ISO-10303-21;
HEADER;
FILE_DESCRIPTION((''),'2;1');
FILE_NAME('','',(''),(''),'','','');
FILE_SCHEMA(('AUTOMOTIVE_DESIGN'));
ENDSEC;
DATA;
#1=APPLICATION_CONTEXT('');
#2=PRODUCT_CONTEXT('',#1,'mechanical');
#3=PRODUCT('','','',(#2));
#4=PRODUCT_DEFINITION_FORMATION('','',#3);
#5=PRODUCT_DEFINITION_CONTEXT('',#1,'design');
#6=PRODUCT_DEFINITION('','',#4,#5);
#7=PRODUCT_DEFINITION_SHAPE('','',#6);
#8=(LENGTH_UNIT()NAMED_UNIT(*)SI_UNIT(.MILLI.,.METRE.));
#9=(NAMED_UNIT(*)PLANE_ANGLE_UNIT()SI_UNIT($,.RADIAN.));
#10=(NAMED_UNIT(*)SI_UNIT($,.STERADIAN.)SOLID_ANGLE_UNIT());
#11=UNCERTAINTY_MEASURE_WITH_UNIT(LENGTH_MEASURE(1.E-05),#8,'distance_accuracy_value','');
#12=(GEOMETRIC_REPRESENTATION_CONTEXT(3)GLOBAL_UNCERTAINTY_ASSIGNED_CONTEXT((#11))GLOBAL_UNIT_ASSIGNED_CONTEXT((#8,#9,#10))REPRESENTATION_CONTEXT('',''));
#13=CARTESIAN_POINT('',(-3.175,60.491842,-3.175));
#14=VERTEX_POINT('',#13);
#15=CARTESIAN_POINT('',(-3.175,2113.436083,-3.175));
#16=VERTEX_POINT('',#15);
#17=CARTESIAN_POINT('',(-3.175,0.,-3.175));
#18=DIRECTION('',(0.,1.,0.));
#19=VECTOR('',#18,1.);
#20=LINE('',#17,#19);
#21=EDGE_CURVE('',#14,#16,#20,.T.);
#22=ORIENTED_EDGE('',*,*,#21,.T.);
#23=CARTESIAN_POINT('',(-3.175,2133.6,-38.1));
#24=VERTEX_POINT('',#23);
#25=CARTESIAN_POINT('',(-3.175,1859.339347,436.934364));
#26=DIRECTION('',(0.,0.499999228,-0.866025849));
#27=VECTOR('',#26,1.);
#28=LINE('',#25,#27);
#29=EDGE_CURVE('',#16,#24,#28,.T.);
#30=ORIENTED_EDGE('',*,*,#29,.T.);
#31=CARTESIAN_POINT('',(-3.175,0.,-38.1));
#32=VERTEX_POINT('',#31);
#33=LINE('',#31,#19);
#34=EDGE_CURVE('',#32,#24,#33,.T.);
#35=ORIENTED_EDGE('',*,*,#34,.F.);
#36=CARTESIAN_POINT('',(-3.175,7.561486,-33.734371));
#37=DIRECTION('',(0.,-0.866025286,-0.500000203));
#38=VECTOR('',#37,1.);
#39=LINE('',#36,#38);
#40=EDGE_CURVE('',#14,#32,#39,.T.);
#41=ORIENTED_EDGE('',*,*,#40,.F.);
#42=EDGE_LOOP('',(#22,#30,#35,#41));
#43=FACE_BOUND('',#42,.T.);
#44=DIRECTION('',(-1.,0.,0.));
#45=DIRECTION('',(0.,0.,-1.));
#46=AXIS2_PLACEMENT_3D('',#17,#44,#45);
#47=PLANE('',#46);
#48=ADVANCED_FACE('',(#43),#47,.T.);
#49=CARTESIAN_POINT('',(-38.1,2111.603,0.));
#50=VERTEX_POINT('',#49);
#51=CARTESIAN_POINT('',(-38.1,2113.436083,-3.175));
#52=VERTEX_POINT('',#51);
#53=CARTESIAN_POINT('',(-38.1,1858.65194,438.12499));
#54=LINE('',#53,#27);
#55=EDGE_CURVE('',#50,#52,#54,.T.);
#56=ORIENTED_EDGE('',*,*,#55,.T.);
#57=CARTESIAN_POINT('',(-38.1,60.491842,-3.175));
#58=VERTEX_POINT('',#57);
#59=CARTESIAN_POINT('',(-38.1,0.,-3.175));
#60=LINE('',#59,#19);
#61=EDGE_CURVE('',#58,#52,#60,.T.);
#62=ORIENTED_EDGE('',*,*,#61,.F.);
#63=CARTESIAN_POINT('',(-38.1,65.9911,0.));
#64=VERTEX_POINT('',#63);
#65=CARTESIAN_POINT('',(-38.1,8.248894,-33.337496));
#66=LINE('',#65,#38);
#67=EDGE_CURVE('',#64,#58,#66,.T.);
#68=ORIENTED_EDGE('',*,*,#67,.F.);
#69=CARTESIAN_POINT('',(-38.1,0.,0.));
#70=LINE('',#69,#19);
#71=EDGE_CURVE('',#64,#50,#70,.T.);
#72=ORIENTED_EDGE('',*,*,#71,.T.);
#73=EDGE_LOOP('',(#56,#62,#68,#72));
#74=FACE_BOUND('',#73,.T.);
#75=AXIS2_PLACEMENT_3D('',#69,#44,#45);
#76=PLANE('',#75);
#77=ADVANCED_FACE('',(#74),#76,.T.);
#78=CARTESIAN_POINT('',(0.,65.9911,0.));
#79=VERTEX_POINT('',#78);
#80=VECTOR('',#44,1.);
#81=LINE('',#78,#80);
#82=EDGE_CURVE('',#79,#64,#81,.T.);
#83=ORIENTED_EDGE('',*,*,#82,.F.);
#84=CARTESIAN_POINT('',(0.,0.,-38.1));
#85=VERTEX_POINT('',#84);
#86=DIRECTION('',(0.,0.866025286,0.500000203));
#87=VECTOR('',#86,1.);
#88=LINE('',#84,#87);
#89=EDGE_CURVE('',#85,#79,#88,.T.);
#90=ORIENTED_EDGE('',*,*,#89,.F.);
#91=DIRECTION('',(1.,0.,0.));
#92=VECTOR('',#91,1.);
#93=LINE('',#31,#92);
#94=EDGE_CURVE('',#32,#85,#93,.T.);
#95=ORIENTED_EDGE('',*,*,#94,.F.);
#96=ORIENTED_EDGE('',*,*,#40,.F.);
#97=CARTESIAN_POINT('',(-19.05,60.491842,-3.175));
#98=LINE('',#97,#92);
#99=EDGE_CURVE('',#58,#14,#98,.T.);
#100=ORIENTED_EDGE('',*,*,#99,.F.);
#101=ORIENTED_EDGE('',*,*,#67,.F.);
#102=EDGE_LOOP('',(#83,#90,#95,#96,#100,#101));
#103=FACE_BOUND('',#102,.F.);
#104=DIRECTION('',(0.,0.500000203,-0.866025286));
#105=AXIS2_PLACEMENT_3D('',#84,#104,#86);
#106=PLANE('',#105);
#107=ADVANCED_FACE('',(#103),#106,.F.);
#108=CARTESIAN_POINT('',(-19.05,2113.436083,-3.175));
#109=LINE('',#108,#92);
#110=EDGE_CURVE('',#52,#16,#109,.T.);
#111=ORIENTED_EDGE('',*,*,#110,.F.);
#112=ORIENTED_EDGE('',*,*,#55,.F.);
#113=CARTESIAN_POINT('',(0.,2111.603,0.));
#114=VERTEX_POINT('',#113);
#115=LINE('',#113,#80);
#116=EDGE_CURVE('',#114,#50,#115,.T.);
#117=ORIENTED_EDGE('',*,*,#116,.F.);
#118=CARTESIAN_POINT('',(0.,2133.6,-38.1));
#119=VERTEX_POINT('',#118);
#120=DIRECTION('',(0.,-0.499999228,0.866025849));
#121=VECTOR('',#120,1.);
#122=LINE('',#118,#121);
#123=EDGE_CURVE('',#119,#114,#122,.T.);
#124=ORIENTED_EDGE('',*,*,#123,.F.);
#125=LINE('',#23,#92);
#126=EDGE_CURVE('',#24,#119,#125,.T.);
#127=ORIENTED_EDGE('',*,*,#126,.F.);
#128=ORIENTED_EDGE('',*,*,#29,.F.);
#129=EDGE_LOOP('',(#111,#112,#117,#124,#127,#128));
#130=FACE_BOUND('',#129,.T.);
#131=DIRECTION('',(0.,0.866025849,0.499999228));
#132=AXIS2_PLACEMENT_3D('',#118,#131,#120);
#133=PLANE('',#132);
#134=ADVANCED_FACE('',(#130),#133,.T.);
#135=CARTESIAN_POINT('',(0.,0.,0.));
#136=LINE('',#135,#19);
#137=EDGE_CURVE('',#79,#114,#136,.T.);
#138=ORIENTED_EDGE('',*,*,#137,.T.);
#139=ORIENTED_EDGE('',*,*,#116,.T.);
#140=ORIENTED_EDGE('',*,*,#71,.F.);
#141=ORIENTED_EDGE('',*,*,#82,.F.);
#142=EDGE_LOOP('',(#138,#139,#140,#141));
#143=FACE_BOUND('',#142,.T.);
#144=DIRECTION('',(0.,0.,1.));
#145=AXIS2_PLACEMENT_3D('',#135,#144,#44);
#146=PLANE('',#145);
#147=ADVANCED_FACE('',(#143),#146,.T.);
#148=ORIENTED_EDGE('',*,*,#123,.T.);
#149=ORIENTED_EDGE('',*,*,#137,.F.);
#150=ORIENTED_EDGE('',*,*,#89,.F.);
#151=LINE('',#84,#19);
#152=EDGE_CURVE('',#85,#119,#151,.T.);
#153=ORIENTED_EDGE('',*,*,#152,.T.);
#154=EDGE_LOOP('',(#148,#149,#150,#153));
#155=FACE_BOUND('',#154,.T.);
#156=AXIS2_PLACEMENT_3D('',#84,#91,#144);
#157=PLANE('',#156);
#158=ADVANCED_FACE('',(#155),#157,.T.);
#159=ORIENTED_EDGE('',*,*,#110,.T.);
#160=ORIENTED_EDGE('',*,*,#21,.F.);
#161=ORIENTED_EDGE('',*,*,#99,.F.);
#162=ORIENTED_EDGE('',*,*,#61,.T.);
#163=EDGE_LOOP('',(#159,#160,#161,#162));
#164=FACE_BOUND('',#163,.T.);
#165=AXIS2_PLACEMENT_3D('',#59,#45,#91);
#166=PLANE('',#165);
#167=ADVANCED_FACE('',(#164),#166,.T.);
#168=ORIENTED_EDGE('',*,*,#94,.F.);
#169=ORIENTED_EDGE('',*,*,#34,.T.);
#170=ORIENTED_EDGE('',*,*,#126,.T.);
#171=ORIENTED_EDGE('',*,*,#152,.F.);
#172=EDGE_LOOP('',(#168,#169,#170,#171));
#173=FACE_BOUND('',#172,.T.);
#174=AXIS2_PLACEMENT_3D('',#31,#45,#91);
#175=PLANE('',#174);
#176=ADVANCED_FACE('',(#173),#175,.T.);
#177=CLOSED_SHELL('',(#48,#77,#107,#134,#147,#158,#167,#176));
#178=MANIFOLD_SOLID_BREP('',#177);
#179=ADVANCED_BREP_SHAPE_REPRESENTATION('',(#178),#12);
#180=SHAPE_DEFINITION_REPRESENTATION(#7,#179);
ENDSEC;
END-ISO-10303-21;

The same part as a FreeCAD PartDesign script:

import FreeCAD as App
import Part
import Sketcher

V = App.Vector
Q = App.Units.Quantity

doc = App.newDocument("Part")
body = doc.addObject("PartDesign::Body", "Body")

# Sketch on XZ plane
sketch1 = body.newObject("Sketcher::SketchObject", "Sketch")
sketch1.AttachmentSupport = (doc.getObject("XZ_Plane"), [""])
sketch1.MapMode = "FlatFace"
sketch1.addGeometry([
    Part.LineSegment(V(-38.1, 0, 0), V(0, 0, 0)),  # 0
    Part.LineSegment(V(0, 0, 0), V(0, -38.1, 0)),  # 1
    Part.LineSegment(V(0, -38.1, 0), V(-3.175, -38.1, 0)),  # 2
    Part.LineSegment(V(-3.175, -38.1, 0), V(-3.175, -3.175, 0)),  # 3
    Part.LineSegment(V(-3.175, -3.175, 0), V(-38.1, -3.175, 0)),  # 4
    Part.LineSegment(V(-38.1, -3.175, 0), V(-38.1, 0, 0)),  # 5
], False)
sketch1.addConstraint([
    Sketcher.Constraint("Coincident", 0, 2, 1, 1),
    Sketcher.Constraint("Coincident", 1, 2, 2, 1),
    Sketcher.Constraint("Coincident", 2, 2, 3, 1),
    Sketcher.Constraint("Coincident", 3, 2, 4, 1),
    Sketcher.Constraint("Coincident", 4, 2, 5, 1),
    Sketcher.Constraint("Coincident", 5, 2, 0, 1),
    Sketcher.Constraint("Horizontal", 0),
    Sketcher.Constraint("Vertical", 1),
    Sketcher.Constraint("Horizontal", 2),
    Sketcher.Constraint("Vertical", 3),
    Sketcher.Constraint("Horizontal", 4),
    Sketcher.Constraint("Vertical", 5),
    Sketcher.Constraint("Coincident", 0, 2, -1, 1),
    Sketcher.Constraint("Equal", 0, 1),
    Sketcher.Constraint("Equal", 4, 3),
    Sketcher.Constraint("DistanceX", 0, 1, 0, 2, Q("1.5 in")),
    Sketcher.Constraint("DistanceX", 2, 2, 2, 1, Q("0.125 in")),
])
pad1 = body.newObject("PartDesign::Pad", "Pad")
pad1.Profile = sketch1
pad1.Length = Q("84 in")
pad1.Reversed = True

# Sketch on YZ plane
sketch2 = body.newObject("Sketcher::SketchObject", "Sketch001")
sketch2.AttachmentSupport = (doc.getObject("YZ_Plane"), [""])
sketch2.MapMode = "FlatFace"
sketch2.addGeometry([
    Part.LineSegment(V(0, 0, 0), V(0, -38.1, 0)),
    Part.LineSegment(V(0, -38.1, 0), V(65.9911, 0, 0)),
    Part.LineSegment(V(65.9911, 0, 0), V(0, 0, 0)),
], False)
sketch2.addConstraint([
    Sketcher.Constraint("Coincident", 0, 2, 1, 1),
    Sketcher.Constraint("Coincident", 1, 2, 2, 1),
    Sketcher.Constraint("Coincident", 2, 2, 0, 1),
    Sketcher.Constraint("Vertical", 0),
    Sketcher.Constraint("Horizontal", 2),
    Sketcher.Constraint("Coincident", 2, 2, -1, 1),
    Sketcher.Constraint("Angle", 1, Q("30 deg")),
    Sketcher.Constraint("Distance", 1, Q("3 in")),
])
pocket1 = body.newObject("PartDesign::Pocket", "Pocket")
pocket1.Profile = sketch2
pocket1.Length = Q("3 in")

# Sketch on YZ plane
sketch3 = body.newObject("Sketcher::SketchObject", "Sketch002")
sketch3.AttachmentSupport = (doc.getObject("YZ_Plane"), [""])
sketch3.MapMode = "FlatFace"
sketch3.addGeometry([
    Part.LineSegment(V(2111.603, 0, 0), V(2133.6, -38.1, 0)),
    Part.LineSegment(V(2133.6, -38.1, 0), V(2133.6, 0, 0)),
    Part.LineSegment(V(2133.6, 0, 0), V(2111.603, 0, 0)),
], False)
sketch3.addConstraint([
    Sketcher.Constraint("Coincident", 0, 2, 1, 1),
    Sketcher.Constraint("Coincident", 1, 2, 2, 1),
    Sketcher.Constraint("Coincident", 2, 2, 0, 1),
    Sketcher.Constraint("Vertical", 1),
    Sketcher.Constraint("Horizontal", 2),
    Sketcher.Constraint("PointOnObject", 1, 2, -1),
    Sketcher.Constraint("DistanceY", 1, 1, 1, 2, Q("1.5 in")),
    Sketcher.Constraint("DistanceX", -1, 1, 0, 2, Q("84 in")),
    Sketcher.Constraint("Angle", 0, Q("-60 deg")),
])
pocket2 = body.newObject("PartDesign::Pocket", "Pocket001")
pocket2.Profile = sketch3
pocket2.Length = Q("3 in")

doc.recompute()
